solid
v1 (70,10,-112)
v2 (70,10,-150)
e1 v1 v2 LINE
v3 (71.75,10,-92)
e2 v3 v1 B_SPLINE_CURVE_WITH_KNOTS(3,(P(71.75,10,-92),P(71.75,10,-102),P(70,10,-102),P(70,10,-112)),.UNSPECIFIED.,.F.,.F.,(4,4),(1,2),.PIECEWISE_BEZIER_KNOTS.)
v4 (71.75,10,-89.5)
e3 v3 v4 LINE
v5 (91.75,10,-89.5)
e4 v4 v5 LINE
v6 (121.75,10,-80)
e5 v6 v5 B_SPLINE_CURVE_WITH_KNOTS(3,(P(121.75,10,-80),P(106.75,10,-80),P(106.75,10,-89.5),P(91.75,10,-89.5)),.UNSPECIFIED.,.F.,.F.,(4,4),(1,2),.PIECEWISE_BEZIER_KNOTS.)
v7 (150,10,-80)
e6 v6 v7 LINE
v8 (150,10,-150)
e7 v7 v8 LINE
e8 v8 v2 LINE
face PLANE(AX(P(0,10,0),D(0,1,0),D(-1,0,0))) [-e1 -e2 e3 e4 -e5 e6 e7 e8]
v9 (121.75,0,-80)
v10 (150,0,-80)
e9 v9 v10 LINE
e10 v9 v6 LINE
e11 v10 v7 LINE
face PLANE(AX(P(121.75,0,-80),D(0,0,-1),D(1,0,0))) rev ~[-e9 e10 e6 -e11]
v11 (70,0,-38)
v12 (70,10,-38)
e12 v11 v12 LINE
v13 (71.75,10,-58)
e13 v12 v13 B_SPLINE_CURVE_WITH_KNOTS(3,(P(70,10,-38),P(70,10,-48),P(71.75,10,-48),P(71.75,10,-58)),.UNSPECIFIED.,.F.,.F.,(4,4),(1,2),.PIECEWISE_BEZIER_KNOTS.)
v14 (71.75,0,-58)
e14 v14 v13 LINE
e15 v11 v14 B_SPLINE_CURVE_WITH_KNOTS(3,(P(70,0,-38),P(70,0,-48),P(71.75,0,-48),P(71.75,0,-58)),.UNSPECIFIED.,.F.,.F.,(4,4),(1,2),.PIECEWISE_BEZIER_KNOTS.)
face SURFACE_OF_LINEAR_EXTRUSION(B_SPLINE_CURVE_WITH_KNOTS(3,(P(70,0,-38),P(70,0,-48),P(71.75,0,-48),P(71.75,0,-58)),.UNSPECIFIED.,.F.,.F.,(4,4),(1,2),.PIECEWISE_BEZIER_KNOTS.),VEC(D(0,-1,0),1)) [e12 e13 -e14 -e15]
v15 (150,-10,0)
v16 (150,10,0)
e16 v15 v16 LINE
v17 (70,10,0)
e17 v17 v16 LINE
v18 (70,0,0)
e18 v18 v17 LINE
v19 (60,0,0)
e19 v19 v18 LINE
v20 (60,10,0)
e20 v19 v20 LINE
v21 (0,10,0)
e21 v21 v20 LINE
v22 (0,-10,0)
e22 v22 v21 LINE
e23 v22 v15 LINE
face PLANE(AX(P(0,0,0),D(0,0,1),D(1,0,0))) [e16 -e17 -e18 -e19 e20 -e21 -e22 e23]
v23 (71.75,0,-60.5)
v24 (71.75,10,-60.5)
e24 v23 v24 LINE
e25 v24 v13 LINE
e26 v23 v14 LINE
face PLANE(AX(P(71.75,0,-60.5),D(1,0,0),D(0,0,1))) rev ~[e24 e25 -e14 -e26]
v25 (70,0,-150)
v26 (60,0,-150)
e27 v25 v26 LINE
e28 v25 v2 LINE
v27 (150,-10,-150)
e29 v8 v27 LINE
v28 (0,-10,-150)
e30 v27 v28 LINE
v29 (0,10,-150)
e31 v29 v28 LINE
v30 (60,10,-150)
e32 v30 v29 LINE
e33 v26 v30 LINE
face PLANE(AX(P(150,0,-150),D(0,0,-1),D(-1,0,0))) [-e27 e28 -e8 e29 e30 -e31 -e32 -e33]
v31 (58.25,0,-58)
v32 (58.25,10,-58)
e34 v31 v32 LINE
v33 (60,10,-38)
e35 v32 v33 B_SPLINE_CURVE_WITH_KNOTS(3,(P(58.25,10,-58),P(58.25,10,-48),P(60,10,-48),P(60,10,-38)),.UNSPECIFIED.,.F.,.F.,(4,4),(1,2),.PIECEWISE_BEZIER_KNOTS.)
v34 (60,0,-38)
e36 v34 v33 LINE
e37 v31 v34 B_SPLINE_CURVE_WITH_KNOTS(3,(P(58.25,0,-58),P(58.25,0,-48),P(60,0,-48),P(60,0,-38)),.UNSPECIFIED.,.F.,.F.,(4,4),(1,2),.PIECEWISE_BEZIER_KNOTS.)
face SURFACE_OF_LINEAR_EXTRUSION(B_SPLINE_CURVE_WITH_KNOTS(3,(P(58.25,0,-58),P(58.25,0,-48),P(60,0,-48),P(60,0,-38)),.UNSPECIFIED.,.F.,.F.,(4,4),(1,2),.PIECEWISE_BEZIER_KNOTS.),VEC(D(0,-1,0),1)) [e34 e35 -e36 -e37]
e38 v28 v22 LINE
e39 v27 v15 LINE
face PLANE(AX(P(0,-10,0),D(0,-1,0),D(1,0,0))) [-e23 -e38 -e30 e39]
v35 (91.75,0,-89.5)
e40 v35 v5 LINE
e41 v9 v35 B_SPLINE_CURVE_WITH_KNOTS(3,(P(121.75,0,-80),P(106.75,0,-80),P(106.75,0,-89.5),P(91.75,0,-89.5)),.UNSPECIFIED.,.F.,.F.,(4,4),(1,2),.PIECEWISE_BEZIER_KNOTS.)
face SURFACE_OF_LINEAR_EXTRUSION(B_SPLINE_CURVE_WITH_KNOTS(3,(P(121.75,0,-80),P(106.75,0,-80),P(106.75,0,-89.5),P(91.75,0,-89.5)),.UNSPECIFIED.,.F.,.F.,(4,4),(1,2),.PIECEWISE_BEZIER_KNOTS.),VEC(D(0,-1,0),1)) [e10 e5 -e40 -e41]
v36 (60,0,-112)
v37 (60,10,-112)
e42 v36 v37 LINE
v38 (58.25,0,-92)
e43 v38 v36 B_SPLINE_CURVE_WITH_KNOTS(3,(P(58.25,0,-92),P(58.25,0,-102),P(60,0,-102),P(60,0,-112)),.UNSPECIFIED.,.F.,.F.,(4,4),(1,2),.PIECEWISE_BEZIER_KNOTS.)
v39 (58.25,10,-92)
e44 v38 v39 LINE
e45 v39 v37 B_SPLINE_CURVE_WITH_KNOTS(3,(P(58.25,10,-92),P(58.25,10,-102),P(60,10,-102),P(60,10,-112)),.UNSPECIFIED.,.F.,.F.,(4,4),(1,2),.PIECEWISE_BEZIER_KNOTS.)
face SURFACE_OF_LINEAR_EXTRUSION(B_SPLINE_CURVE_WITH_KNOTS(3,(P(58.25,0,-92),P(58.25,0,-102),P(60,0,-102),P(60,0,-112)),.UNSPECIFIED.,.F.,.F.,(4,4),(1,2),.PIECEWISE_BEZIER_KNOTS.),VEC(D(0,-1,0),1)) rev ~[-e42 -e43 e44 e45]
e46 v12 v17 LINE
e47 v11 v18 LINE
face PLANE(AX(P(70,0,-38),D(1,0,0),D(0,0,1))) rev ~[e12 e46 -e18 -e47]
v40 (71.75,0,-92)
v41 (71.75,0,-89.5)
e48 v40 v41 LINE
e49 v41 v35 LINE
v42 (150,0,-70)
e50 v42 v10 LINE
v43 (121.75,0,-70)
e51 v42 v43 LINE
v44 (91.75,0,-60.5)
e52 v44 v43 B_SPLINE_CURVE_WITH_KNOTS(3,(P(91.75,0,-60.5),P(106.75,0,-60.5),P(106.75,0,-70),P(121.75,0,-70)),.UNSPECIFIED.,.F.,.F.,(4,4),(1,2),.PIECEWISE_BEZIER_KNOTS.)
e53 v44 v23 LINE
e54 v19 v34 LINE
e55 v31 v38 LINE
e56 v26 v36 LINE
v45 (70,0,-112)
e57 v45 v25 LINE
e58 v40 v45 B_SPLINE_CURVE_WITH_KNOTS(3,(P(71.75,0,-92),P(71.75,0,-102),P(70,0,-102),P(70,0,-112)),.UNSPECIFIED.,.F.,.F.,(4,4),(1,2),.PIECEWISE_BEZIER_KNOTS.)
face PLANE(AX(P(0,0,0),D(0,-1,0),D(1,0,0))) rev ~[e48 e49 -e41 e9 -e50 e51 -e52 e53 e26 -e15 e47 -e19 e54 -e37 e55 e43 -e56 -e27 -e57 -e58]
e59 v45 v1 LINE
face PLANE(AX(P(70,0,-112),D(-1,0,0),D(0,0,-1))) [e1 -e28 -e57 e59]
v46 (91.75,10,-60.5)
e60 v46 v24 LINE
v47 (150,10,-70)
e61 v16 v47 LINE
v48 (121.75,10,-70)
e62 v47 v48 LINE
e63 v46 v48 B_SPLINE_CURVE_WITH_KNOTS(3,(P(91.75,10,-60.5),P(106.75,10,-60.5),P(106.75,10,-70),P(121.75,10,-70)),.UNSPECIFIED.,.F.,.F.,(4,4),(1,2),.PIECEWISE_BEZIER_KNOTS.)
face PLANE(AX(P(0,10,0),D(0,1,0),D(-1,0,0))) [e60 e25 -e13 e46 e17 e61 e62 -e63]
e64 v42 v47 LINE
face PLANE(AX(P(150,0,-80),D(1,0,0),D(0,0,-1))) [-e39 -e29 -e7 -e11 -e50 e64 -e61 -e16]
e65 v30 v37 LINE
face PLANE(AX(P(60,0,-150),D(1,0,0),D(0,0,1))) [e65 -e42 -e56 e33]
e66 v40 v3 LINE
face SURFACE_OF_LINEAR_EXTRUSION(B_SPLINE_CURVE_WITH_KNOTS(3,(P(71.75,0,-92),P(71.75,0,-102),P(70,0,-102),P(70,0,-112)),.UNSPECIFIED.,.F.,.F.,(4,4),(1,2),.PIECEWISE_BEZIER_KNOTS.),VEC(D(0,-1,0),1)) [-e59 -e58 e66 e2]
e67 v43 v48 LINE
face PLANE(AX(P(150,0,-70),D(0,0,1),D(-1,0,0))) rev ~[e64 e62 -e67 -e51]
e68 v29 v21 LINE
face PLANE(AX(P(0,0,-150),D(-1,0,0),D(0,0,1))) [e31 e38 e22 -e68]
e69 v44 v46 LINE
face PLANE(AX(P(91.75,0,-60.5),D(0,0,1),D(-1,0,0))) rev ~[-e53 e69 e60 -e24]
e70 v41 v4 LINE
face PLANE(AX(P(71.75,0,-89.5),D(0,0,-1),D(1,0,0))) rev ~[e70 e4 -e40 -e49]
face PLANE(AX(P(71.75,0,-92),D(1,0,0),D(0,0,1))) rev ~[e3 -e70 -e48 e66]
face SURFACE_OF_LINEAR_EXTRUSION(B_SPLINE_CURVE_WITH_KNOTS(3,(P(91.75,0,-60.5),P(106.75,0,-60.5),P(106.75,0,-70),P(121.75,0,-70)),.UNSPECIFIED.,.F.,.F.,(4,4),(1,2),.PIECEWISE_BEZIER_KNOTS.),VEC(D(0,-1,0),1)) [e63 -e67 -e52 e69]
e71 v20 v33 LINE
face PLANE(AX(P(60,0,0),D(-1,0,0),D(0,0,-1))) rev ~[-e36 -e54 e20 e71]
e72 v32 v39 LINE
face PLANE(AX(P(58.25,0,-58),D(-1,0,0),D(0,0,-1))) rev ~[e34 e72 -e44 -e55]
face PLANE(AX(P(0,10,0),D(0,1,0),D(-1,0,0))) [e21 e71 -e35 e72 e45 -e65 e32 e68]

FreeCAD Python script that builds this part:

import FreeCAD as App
import Part
import Sketcher
from FreeCAD import Vector

doc = App.newDocument("Part")
body = doc.addObject("PartDesign::Body", "Body")
body.AllowCompound = True

# Sketch on XZ plane
sketch1 = doc.addObject("Sketcher::SketchObject", "Sketch")
body.addObject(sketch1)
sketch1.AttachmentSupport = (doc.XZ_Plane, [""])
sketch1.MapMode = "FlatFace"
sketch1.addGeometry([
    Part.LineSegment(Vector(0, -150, 0), Vector(0, 0, 0)),  # 0
    Part.LineSegment(Vector(0, 0, 0), Vector(60, 0, 0)),  # 1
    Part.LineSegment(Vector(60, 0, 0), Vector(60, -38, 0)),  # 2
    Part.BSplineCurve([Vector(58.25, -58, 0), Vector(58.25, -48, 0), Vector(60, -48, 0), Vector(60, -38, 0)], [4, 4], [1, 2], False, 3, [1, 1, 1, 1], False),  # 3
    Part.LineSegment(Vector(58.25, -58, 0), Vector(58.25, -92, 0)),  # 4
    Part.BSplineCurve([Vector(58.25, -92, 0), Vector(58.25, -102, 0), Vector(60, -102, 0), Vector(60, -112, 0)], [4, 4], [1, 2], False, 3, [1, 1, 1, 1], False),  # 5
    Part.LineSegment(Vector(60, -112, 0), Vector(60, -150, 0)),  # 6
    Part.LineSegment(Vector(60, -150, 0), Vector(0, -150, 0)),  # 7
    Part.LineSegment(Vector(70, -38, 0), Vector(70, 0, 0)),  # 8
    Part.LineSegment(Vector(70, 0, 0), Vector(150, 0, 0)),  # 9
    Part.LineSegment(Vector(150, 0, 0), Vector(150, -70, 0)),  # 10
    Part.LineSegment(Vector(150, -70, 0), Vector(121.75, -70, 0)),  # 11
    Part.BSplineCurve([Vector(91.75, -60.5, 0), Vector(106.75, -60.5, 0), Vector(106.75, -70, 0), Vector(121.75, -70, 0)], [4, 4], [1, 2], False, 3, [1, 1, 1, 1], False),  # 12
    Part.LineSegment(Vector(91.75, -60.5, 0), Vector(71.75, -60.5, 0)),  # 13
    Part.LineSegment(Vector(71.75, -60.5, 0), Vector(71.75, -58, 0)),  # 14
    Part.BSplineCurve([Vector(70, -38, 0), Vector(70, -48, 0), Vector(71.75, -48, 0), Vector(71.75, -58, 0)], [4, 4], [1, 2], False, 3, [1, 1, 1, 1], False),  # 15
    Part.LineSegment(Vector(150, -150, 0), Vector(70, -150, 0)),  # 16
    Part.LineSegment(Vector(70, -150, 0), Vector(70, -112, 0)),  # 17
    Part.BSplineCurve([Vector(71.75, -92, 0), Vector(71.75, -102, 0), Vector(70, -102, 0), Vector(70, -112, 0)], [4, 4], [1, 2], False, 3, [1, 1, 1, 1], False),  # 18
    Part.LineSegment(Vector(71.75, -92, 0), Vector(71.75, -89.5, 0)),  # 19
    Part.LineSegment(Vector(71.75, -89.5, 0), Vector(91.75, -89.5, 0)),  # 20
    Part.BSplineCurve([Vector(121.75, -80, 0), Vector(106.75, -80, 0), Vector(106.75, -89.5, 0), Vector(91.75, -89.5, 0)], [4, 4], [1, 2], False, 3, [1, 1, 1, 1], False),  # 21
    Part.LineSegment(Vector(121.75, -80, 0), Vector(150, -80, 0)),  # 22
    Part.LineSegment(Vector(150, -80, 0), Vector(150, -150, 0)),  # 23
], False)
sketch1.addConstraint([
    Sketcher.Constraint("Block", 3),
    Sketcher.Constraint("Block", 5),
    Sketcher.Constraint("Block", 12),
    Sketcher.Constraint("Block", 15),
    Sketcher.Constraint("Block", 18),
    Sketcher.Constraint("Block", 21),
    Sketcher.Constraint("Coincident", 0, 2, 1, 1),
    Sketcher.Constraint("Coincident", 1, 2, 2, 1),
    Sketcher.Constraint("Coincident", 2, 2, 3, 2),
    Sketcher.Constraint("Coincident", 3, 1, 4, 1),
    Sketcher.Constraint("Coincident", 4, 2, 5, 1),
    Sketcher.Constraint("Coincident", 5, 2, 6, 1),
    Sketcher.Constraint("Coincident", 6, 2, 7, 1),
    Sketcher.Constraint("Coincident", 7, 2, 0, 1),
    Sketcher.Constraint("Coincident", 8, 2, 9, 1),
    Sketcher.Constraint("Coincident", 9, 2, 10, 1),
    Sketcher.Constraint("Coincident", 10, 2, 11, 1),
    Sketcher.Constraint("Coincident", 11, 2, 12, 2),
    Sketcher.Constraint("Coincident", 12, 1, 13, 1),
    Sketcher.Constraint("Coincident", 13, 2, 14, 1),
    Sketcher.Constraint("Coincident", 14, 2, 15, 2),
    Sketcher.Constraint("Coincident", 15, 1, 8, 1),
    Sketcher.Constraint("Coincident", 16, 2, 17, 1),
    Sketcher.Constraint("Coincident", 17, 2, 18, 2),
    Sketcher.Constraint("Coincident", 18, 1, 19, 1),
    Sketcher.Constraint("Coincident", 19, 2, 20, 1),
    Sketcher.Constraint("Coincident", 20, 2, 21, 2),
    Sketcher.Constraint("Coincident", 21, 1, 22, 1),
    Sketcher.Constraint("Coincident", 22, 2, 23, 1),
    Sketcher.Constraint("Coincident", 23, 2, 16, 1),
    Sketcher.Constraint("Vertical", 0),
    Sketcher.Constraint("Horizontal", 1),
    Sketcher.Constraint("Vertical", 2),
    Sketcher.Constraint("Vertical", 6),
    Sketcher.Constraint("Horizontal", 7),
    Sketcher.Constraint("Vertical", 8),
    Sketcher.Constraint("Horizontal", 9),
    Sketcher.Constraint("Vertical", 10),
    Sketcher.Constraint("Horizontal", 11),
    Sketcher.Constraint("Horizontal", 13),
    Sketcher.Constraint("Vertical", 14),
    Sketcher.Constraint("Horizontal", 16),
    Sketcher.Constraint("Vertical", 17),
    Sketcher.Constraint("Vertical", 19),
    Sketcher.Constraint("Horizontal", 20),
    Sketcher.Constraint("Horizontal", 22),
    Sketcher.Constraint("Vertical", 23),
    Sketcher.Constraint("Coincident", 0, 2, -1, 1),
    Sketcher.Constraint("PointOnObject", 8, 2, -1),
    Sketcher.Constraint("Horizontal", 7, 2, 16, 2),
    Sketcher.Constraint("Vertical", 10, 2, 22, 2),
    Sketcher.Constraint("Equal", 2, 6),
    Sketcher.Constraint("DistanceX", -1, 1, 9, 2, 150.0),
])
pad1 = doc.addObject("PartDesign::Pad", "Pad")
body.addObject(pad1)
pad1.Profile = sketch1
pad1.Length = 10
pad1.Reversed = True

# Sketch on XZ plane
sketch2 = doc.addObject("Sketcher::SketchObject", "Sketch001")
body.addObject(sketch2)
sketch2.AttachmentSupport = (doc.XZ_Plane, [""])
sketch2.MapMode = "FlatFace"
sketch2.addGeometry([
    Part.LineSegment(Vector(0, 0, 0), Vector(0, -150, 0)),
    Part.LineSegment(Vector(0, -150, 0), Vector(150, -150, 0)),
    Part.LineSegment(Vector(150, -150, 0), Vector(150, 0, 0)),
    Part.LineSegment(Vector(150, 0, 0), Vector(0, 0, 0)),
], False)
sketch2.addConstraint([
    Sketcher.Constraint("Coincident", 0, 2, 1, 1),
    Sketcher.Constraint("Coincident", 1, 2, 2, 1),
    Sketcher.Constraint("Coincident", 2, 2, 3, 1),
    Sketcher.Constraint("Coincident", 3, 2, 0, 1),
    Sketcher.Constraint("Vertical", 0),
    Sketcher.Constraint("Horizontal", 1),
    Sketcher.Constraint("Vertical", 2),
    Sketcher.Constraint("Horizontal", 3),
    Sketcher.Constraint("Coincident", 3, 2, -1, 1),
    Sketcher.Constraint("Equal", 3, 0),
    Sketcher.Constraint("DistanceX", 1, 1, 1, 2, 150.0),
])
pad2 = doc.addObject("PartDesign::Pad", "Pad001")
body.addObject(pad2)
pad2.Profile = sketch2
pad2.Length = 10

doc.recompute()
